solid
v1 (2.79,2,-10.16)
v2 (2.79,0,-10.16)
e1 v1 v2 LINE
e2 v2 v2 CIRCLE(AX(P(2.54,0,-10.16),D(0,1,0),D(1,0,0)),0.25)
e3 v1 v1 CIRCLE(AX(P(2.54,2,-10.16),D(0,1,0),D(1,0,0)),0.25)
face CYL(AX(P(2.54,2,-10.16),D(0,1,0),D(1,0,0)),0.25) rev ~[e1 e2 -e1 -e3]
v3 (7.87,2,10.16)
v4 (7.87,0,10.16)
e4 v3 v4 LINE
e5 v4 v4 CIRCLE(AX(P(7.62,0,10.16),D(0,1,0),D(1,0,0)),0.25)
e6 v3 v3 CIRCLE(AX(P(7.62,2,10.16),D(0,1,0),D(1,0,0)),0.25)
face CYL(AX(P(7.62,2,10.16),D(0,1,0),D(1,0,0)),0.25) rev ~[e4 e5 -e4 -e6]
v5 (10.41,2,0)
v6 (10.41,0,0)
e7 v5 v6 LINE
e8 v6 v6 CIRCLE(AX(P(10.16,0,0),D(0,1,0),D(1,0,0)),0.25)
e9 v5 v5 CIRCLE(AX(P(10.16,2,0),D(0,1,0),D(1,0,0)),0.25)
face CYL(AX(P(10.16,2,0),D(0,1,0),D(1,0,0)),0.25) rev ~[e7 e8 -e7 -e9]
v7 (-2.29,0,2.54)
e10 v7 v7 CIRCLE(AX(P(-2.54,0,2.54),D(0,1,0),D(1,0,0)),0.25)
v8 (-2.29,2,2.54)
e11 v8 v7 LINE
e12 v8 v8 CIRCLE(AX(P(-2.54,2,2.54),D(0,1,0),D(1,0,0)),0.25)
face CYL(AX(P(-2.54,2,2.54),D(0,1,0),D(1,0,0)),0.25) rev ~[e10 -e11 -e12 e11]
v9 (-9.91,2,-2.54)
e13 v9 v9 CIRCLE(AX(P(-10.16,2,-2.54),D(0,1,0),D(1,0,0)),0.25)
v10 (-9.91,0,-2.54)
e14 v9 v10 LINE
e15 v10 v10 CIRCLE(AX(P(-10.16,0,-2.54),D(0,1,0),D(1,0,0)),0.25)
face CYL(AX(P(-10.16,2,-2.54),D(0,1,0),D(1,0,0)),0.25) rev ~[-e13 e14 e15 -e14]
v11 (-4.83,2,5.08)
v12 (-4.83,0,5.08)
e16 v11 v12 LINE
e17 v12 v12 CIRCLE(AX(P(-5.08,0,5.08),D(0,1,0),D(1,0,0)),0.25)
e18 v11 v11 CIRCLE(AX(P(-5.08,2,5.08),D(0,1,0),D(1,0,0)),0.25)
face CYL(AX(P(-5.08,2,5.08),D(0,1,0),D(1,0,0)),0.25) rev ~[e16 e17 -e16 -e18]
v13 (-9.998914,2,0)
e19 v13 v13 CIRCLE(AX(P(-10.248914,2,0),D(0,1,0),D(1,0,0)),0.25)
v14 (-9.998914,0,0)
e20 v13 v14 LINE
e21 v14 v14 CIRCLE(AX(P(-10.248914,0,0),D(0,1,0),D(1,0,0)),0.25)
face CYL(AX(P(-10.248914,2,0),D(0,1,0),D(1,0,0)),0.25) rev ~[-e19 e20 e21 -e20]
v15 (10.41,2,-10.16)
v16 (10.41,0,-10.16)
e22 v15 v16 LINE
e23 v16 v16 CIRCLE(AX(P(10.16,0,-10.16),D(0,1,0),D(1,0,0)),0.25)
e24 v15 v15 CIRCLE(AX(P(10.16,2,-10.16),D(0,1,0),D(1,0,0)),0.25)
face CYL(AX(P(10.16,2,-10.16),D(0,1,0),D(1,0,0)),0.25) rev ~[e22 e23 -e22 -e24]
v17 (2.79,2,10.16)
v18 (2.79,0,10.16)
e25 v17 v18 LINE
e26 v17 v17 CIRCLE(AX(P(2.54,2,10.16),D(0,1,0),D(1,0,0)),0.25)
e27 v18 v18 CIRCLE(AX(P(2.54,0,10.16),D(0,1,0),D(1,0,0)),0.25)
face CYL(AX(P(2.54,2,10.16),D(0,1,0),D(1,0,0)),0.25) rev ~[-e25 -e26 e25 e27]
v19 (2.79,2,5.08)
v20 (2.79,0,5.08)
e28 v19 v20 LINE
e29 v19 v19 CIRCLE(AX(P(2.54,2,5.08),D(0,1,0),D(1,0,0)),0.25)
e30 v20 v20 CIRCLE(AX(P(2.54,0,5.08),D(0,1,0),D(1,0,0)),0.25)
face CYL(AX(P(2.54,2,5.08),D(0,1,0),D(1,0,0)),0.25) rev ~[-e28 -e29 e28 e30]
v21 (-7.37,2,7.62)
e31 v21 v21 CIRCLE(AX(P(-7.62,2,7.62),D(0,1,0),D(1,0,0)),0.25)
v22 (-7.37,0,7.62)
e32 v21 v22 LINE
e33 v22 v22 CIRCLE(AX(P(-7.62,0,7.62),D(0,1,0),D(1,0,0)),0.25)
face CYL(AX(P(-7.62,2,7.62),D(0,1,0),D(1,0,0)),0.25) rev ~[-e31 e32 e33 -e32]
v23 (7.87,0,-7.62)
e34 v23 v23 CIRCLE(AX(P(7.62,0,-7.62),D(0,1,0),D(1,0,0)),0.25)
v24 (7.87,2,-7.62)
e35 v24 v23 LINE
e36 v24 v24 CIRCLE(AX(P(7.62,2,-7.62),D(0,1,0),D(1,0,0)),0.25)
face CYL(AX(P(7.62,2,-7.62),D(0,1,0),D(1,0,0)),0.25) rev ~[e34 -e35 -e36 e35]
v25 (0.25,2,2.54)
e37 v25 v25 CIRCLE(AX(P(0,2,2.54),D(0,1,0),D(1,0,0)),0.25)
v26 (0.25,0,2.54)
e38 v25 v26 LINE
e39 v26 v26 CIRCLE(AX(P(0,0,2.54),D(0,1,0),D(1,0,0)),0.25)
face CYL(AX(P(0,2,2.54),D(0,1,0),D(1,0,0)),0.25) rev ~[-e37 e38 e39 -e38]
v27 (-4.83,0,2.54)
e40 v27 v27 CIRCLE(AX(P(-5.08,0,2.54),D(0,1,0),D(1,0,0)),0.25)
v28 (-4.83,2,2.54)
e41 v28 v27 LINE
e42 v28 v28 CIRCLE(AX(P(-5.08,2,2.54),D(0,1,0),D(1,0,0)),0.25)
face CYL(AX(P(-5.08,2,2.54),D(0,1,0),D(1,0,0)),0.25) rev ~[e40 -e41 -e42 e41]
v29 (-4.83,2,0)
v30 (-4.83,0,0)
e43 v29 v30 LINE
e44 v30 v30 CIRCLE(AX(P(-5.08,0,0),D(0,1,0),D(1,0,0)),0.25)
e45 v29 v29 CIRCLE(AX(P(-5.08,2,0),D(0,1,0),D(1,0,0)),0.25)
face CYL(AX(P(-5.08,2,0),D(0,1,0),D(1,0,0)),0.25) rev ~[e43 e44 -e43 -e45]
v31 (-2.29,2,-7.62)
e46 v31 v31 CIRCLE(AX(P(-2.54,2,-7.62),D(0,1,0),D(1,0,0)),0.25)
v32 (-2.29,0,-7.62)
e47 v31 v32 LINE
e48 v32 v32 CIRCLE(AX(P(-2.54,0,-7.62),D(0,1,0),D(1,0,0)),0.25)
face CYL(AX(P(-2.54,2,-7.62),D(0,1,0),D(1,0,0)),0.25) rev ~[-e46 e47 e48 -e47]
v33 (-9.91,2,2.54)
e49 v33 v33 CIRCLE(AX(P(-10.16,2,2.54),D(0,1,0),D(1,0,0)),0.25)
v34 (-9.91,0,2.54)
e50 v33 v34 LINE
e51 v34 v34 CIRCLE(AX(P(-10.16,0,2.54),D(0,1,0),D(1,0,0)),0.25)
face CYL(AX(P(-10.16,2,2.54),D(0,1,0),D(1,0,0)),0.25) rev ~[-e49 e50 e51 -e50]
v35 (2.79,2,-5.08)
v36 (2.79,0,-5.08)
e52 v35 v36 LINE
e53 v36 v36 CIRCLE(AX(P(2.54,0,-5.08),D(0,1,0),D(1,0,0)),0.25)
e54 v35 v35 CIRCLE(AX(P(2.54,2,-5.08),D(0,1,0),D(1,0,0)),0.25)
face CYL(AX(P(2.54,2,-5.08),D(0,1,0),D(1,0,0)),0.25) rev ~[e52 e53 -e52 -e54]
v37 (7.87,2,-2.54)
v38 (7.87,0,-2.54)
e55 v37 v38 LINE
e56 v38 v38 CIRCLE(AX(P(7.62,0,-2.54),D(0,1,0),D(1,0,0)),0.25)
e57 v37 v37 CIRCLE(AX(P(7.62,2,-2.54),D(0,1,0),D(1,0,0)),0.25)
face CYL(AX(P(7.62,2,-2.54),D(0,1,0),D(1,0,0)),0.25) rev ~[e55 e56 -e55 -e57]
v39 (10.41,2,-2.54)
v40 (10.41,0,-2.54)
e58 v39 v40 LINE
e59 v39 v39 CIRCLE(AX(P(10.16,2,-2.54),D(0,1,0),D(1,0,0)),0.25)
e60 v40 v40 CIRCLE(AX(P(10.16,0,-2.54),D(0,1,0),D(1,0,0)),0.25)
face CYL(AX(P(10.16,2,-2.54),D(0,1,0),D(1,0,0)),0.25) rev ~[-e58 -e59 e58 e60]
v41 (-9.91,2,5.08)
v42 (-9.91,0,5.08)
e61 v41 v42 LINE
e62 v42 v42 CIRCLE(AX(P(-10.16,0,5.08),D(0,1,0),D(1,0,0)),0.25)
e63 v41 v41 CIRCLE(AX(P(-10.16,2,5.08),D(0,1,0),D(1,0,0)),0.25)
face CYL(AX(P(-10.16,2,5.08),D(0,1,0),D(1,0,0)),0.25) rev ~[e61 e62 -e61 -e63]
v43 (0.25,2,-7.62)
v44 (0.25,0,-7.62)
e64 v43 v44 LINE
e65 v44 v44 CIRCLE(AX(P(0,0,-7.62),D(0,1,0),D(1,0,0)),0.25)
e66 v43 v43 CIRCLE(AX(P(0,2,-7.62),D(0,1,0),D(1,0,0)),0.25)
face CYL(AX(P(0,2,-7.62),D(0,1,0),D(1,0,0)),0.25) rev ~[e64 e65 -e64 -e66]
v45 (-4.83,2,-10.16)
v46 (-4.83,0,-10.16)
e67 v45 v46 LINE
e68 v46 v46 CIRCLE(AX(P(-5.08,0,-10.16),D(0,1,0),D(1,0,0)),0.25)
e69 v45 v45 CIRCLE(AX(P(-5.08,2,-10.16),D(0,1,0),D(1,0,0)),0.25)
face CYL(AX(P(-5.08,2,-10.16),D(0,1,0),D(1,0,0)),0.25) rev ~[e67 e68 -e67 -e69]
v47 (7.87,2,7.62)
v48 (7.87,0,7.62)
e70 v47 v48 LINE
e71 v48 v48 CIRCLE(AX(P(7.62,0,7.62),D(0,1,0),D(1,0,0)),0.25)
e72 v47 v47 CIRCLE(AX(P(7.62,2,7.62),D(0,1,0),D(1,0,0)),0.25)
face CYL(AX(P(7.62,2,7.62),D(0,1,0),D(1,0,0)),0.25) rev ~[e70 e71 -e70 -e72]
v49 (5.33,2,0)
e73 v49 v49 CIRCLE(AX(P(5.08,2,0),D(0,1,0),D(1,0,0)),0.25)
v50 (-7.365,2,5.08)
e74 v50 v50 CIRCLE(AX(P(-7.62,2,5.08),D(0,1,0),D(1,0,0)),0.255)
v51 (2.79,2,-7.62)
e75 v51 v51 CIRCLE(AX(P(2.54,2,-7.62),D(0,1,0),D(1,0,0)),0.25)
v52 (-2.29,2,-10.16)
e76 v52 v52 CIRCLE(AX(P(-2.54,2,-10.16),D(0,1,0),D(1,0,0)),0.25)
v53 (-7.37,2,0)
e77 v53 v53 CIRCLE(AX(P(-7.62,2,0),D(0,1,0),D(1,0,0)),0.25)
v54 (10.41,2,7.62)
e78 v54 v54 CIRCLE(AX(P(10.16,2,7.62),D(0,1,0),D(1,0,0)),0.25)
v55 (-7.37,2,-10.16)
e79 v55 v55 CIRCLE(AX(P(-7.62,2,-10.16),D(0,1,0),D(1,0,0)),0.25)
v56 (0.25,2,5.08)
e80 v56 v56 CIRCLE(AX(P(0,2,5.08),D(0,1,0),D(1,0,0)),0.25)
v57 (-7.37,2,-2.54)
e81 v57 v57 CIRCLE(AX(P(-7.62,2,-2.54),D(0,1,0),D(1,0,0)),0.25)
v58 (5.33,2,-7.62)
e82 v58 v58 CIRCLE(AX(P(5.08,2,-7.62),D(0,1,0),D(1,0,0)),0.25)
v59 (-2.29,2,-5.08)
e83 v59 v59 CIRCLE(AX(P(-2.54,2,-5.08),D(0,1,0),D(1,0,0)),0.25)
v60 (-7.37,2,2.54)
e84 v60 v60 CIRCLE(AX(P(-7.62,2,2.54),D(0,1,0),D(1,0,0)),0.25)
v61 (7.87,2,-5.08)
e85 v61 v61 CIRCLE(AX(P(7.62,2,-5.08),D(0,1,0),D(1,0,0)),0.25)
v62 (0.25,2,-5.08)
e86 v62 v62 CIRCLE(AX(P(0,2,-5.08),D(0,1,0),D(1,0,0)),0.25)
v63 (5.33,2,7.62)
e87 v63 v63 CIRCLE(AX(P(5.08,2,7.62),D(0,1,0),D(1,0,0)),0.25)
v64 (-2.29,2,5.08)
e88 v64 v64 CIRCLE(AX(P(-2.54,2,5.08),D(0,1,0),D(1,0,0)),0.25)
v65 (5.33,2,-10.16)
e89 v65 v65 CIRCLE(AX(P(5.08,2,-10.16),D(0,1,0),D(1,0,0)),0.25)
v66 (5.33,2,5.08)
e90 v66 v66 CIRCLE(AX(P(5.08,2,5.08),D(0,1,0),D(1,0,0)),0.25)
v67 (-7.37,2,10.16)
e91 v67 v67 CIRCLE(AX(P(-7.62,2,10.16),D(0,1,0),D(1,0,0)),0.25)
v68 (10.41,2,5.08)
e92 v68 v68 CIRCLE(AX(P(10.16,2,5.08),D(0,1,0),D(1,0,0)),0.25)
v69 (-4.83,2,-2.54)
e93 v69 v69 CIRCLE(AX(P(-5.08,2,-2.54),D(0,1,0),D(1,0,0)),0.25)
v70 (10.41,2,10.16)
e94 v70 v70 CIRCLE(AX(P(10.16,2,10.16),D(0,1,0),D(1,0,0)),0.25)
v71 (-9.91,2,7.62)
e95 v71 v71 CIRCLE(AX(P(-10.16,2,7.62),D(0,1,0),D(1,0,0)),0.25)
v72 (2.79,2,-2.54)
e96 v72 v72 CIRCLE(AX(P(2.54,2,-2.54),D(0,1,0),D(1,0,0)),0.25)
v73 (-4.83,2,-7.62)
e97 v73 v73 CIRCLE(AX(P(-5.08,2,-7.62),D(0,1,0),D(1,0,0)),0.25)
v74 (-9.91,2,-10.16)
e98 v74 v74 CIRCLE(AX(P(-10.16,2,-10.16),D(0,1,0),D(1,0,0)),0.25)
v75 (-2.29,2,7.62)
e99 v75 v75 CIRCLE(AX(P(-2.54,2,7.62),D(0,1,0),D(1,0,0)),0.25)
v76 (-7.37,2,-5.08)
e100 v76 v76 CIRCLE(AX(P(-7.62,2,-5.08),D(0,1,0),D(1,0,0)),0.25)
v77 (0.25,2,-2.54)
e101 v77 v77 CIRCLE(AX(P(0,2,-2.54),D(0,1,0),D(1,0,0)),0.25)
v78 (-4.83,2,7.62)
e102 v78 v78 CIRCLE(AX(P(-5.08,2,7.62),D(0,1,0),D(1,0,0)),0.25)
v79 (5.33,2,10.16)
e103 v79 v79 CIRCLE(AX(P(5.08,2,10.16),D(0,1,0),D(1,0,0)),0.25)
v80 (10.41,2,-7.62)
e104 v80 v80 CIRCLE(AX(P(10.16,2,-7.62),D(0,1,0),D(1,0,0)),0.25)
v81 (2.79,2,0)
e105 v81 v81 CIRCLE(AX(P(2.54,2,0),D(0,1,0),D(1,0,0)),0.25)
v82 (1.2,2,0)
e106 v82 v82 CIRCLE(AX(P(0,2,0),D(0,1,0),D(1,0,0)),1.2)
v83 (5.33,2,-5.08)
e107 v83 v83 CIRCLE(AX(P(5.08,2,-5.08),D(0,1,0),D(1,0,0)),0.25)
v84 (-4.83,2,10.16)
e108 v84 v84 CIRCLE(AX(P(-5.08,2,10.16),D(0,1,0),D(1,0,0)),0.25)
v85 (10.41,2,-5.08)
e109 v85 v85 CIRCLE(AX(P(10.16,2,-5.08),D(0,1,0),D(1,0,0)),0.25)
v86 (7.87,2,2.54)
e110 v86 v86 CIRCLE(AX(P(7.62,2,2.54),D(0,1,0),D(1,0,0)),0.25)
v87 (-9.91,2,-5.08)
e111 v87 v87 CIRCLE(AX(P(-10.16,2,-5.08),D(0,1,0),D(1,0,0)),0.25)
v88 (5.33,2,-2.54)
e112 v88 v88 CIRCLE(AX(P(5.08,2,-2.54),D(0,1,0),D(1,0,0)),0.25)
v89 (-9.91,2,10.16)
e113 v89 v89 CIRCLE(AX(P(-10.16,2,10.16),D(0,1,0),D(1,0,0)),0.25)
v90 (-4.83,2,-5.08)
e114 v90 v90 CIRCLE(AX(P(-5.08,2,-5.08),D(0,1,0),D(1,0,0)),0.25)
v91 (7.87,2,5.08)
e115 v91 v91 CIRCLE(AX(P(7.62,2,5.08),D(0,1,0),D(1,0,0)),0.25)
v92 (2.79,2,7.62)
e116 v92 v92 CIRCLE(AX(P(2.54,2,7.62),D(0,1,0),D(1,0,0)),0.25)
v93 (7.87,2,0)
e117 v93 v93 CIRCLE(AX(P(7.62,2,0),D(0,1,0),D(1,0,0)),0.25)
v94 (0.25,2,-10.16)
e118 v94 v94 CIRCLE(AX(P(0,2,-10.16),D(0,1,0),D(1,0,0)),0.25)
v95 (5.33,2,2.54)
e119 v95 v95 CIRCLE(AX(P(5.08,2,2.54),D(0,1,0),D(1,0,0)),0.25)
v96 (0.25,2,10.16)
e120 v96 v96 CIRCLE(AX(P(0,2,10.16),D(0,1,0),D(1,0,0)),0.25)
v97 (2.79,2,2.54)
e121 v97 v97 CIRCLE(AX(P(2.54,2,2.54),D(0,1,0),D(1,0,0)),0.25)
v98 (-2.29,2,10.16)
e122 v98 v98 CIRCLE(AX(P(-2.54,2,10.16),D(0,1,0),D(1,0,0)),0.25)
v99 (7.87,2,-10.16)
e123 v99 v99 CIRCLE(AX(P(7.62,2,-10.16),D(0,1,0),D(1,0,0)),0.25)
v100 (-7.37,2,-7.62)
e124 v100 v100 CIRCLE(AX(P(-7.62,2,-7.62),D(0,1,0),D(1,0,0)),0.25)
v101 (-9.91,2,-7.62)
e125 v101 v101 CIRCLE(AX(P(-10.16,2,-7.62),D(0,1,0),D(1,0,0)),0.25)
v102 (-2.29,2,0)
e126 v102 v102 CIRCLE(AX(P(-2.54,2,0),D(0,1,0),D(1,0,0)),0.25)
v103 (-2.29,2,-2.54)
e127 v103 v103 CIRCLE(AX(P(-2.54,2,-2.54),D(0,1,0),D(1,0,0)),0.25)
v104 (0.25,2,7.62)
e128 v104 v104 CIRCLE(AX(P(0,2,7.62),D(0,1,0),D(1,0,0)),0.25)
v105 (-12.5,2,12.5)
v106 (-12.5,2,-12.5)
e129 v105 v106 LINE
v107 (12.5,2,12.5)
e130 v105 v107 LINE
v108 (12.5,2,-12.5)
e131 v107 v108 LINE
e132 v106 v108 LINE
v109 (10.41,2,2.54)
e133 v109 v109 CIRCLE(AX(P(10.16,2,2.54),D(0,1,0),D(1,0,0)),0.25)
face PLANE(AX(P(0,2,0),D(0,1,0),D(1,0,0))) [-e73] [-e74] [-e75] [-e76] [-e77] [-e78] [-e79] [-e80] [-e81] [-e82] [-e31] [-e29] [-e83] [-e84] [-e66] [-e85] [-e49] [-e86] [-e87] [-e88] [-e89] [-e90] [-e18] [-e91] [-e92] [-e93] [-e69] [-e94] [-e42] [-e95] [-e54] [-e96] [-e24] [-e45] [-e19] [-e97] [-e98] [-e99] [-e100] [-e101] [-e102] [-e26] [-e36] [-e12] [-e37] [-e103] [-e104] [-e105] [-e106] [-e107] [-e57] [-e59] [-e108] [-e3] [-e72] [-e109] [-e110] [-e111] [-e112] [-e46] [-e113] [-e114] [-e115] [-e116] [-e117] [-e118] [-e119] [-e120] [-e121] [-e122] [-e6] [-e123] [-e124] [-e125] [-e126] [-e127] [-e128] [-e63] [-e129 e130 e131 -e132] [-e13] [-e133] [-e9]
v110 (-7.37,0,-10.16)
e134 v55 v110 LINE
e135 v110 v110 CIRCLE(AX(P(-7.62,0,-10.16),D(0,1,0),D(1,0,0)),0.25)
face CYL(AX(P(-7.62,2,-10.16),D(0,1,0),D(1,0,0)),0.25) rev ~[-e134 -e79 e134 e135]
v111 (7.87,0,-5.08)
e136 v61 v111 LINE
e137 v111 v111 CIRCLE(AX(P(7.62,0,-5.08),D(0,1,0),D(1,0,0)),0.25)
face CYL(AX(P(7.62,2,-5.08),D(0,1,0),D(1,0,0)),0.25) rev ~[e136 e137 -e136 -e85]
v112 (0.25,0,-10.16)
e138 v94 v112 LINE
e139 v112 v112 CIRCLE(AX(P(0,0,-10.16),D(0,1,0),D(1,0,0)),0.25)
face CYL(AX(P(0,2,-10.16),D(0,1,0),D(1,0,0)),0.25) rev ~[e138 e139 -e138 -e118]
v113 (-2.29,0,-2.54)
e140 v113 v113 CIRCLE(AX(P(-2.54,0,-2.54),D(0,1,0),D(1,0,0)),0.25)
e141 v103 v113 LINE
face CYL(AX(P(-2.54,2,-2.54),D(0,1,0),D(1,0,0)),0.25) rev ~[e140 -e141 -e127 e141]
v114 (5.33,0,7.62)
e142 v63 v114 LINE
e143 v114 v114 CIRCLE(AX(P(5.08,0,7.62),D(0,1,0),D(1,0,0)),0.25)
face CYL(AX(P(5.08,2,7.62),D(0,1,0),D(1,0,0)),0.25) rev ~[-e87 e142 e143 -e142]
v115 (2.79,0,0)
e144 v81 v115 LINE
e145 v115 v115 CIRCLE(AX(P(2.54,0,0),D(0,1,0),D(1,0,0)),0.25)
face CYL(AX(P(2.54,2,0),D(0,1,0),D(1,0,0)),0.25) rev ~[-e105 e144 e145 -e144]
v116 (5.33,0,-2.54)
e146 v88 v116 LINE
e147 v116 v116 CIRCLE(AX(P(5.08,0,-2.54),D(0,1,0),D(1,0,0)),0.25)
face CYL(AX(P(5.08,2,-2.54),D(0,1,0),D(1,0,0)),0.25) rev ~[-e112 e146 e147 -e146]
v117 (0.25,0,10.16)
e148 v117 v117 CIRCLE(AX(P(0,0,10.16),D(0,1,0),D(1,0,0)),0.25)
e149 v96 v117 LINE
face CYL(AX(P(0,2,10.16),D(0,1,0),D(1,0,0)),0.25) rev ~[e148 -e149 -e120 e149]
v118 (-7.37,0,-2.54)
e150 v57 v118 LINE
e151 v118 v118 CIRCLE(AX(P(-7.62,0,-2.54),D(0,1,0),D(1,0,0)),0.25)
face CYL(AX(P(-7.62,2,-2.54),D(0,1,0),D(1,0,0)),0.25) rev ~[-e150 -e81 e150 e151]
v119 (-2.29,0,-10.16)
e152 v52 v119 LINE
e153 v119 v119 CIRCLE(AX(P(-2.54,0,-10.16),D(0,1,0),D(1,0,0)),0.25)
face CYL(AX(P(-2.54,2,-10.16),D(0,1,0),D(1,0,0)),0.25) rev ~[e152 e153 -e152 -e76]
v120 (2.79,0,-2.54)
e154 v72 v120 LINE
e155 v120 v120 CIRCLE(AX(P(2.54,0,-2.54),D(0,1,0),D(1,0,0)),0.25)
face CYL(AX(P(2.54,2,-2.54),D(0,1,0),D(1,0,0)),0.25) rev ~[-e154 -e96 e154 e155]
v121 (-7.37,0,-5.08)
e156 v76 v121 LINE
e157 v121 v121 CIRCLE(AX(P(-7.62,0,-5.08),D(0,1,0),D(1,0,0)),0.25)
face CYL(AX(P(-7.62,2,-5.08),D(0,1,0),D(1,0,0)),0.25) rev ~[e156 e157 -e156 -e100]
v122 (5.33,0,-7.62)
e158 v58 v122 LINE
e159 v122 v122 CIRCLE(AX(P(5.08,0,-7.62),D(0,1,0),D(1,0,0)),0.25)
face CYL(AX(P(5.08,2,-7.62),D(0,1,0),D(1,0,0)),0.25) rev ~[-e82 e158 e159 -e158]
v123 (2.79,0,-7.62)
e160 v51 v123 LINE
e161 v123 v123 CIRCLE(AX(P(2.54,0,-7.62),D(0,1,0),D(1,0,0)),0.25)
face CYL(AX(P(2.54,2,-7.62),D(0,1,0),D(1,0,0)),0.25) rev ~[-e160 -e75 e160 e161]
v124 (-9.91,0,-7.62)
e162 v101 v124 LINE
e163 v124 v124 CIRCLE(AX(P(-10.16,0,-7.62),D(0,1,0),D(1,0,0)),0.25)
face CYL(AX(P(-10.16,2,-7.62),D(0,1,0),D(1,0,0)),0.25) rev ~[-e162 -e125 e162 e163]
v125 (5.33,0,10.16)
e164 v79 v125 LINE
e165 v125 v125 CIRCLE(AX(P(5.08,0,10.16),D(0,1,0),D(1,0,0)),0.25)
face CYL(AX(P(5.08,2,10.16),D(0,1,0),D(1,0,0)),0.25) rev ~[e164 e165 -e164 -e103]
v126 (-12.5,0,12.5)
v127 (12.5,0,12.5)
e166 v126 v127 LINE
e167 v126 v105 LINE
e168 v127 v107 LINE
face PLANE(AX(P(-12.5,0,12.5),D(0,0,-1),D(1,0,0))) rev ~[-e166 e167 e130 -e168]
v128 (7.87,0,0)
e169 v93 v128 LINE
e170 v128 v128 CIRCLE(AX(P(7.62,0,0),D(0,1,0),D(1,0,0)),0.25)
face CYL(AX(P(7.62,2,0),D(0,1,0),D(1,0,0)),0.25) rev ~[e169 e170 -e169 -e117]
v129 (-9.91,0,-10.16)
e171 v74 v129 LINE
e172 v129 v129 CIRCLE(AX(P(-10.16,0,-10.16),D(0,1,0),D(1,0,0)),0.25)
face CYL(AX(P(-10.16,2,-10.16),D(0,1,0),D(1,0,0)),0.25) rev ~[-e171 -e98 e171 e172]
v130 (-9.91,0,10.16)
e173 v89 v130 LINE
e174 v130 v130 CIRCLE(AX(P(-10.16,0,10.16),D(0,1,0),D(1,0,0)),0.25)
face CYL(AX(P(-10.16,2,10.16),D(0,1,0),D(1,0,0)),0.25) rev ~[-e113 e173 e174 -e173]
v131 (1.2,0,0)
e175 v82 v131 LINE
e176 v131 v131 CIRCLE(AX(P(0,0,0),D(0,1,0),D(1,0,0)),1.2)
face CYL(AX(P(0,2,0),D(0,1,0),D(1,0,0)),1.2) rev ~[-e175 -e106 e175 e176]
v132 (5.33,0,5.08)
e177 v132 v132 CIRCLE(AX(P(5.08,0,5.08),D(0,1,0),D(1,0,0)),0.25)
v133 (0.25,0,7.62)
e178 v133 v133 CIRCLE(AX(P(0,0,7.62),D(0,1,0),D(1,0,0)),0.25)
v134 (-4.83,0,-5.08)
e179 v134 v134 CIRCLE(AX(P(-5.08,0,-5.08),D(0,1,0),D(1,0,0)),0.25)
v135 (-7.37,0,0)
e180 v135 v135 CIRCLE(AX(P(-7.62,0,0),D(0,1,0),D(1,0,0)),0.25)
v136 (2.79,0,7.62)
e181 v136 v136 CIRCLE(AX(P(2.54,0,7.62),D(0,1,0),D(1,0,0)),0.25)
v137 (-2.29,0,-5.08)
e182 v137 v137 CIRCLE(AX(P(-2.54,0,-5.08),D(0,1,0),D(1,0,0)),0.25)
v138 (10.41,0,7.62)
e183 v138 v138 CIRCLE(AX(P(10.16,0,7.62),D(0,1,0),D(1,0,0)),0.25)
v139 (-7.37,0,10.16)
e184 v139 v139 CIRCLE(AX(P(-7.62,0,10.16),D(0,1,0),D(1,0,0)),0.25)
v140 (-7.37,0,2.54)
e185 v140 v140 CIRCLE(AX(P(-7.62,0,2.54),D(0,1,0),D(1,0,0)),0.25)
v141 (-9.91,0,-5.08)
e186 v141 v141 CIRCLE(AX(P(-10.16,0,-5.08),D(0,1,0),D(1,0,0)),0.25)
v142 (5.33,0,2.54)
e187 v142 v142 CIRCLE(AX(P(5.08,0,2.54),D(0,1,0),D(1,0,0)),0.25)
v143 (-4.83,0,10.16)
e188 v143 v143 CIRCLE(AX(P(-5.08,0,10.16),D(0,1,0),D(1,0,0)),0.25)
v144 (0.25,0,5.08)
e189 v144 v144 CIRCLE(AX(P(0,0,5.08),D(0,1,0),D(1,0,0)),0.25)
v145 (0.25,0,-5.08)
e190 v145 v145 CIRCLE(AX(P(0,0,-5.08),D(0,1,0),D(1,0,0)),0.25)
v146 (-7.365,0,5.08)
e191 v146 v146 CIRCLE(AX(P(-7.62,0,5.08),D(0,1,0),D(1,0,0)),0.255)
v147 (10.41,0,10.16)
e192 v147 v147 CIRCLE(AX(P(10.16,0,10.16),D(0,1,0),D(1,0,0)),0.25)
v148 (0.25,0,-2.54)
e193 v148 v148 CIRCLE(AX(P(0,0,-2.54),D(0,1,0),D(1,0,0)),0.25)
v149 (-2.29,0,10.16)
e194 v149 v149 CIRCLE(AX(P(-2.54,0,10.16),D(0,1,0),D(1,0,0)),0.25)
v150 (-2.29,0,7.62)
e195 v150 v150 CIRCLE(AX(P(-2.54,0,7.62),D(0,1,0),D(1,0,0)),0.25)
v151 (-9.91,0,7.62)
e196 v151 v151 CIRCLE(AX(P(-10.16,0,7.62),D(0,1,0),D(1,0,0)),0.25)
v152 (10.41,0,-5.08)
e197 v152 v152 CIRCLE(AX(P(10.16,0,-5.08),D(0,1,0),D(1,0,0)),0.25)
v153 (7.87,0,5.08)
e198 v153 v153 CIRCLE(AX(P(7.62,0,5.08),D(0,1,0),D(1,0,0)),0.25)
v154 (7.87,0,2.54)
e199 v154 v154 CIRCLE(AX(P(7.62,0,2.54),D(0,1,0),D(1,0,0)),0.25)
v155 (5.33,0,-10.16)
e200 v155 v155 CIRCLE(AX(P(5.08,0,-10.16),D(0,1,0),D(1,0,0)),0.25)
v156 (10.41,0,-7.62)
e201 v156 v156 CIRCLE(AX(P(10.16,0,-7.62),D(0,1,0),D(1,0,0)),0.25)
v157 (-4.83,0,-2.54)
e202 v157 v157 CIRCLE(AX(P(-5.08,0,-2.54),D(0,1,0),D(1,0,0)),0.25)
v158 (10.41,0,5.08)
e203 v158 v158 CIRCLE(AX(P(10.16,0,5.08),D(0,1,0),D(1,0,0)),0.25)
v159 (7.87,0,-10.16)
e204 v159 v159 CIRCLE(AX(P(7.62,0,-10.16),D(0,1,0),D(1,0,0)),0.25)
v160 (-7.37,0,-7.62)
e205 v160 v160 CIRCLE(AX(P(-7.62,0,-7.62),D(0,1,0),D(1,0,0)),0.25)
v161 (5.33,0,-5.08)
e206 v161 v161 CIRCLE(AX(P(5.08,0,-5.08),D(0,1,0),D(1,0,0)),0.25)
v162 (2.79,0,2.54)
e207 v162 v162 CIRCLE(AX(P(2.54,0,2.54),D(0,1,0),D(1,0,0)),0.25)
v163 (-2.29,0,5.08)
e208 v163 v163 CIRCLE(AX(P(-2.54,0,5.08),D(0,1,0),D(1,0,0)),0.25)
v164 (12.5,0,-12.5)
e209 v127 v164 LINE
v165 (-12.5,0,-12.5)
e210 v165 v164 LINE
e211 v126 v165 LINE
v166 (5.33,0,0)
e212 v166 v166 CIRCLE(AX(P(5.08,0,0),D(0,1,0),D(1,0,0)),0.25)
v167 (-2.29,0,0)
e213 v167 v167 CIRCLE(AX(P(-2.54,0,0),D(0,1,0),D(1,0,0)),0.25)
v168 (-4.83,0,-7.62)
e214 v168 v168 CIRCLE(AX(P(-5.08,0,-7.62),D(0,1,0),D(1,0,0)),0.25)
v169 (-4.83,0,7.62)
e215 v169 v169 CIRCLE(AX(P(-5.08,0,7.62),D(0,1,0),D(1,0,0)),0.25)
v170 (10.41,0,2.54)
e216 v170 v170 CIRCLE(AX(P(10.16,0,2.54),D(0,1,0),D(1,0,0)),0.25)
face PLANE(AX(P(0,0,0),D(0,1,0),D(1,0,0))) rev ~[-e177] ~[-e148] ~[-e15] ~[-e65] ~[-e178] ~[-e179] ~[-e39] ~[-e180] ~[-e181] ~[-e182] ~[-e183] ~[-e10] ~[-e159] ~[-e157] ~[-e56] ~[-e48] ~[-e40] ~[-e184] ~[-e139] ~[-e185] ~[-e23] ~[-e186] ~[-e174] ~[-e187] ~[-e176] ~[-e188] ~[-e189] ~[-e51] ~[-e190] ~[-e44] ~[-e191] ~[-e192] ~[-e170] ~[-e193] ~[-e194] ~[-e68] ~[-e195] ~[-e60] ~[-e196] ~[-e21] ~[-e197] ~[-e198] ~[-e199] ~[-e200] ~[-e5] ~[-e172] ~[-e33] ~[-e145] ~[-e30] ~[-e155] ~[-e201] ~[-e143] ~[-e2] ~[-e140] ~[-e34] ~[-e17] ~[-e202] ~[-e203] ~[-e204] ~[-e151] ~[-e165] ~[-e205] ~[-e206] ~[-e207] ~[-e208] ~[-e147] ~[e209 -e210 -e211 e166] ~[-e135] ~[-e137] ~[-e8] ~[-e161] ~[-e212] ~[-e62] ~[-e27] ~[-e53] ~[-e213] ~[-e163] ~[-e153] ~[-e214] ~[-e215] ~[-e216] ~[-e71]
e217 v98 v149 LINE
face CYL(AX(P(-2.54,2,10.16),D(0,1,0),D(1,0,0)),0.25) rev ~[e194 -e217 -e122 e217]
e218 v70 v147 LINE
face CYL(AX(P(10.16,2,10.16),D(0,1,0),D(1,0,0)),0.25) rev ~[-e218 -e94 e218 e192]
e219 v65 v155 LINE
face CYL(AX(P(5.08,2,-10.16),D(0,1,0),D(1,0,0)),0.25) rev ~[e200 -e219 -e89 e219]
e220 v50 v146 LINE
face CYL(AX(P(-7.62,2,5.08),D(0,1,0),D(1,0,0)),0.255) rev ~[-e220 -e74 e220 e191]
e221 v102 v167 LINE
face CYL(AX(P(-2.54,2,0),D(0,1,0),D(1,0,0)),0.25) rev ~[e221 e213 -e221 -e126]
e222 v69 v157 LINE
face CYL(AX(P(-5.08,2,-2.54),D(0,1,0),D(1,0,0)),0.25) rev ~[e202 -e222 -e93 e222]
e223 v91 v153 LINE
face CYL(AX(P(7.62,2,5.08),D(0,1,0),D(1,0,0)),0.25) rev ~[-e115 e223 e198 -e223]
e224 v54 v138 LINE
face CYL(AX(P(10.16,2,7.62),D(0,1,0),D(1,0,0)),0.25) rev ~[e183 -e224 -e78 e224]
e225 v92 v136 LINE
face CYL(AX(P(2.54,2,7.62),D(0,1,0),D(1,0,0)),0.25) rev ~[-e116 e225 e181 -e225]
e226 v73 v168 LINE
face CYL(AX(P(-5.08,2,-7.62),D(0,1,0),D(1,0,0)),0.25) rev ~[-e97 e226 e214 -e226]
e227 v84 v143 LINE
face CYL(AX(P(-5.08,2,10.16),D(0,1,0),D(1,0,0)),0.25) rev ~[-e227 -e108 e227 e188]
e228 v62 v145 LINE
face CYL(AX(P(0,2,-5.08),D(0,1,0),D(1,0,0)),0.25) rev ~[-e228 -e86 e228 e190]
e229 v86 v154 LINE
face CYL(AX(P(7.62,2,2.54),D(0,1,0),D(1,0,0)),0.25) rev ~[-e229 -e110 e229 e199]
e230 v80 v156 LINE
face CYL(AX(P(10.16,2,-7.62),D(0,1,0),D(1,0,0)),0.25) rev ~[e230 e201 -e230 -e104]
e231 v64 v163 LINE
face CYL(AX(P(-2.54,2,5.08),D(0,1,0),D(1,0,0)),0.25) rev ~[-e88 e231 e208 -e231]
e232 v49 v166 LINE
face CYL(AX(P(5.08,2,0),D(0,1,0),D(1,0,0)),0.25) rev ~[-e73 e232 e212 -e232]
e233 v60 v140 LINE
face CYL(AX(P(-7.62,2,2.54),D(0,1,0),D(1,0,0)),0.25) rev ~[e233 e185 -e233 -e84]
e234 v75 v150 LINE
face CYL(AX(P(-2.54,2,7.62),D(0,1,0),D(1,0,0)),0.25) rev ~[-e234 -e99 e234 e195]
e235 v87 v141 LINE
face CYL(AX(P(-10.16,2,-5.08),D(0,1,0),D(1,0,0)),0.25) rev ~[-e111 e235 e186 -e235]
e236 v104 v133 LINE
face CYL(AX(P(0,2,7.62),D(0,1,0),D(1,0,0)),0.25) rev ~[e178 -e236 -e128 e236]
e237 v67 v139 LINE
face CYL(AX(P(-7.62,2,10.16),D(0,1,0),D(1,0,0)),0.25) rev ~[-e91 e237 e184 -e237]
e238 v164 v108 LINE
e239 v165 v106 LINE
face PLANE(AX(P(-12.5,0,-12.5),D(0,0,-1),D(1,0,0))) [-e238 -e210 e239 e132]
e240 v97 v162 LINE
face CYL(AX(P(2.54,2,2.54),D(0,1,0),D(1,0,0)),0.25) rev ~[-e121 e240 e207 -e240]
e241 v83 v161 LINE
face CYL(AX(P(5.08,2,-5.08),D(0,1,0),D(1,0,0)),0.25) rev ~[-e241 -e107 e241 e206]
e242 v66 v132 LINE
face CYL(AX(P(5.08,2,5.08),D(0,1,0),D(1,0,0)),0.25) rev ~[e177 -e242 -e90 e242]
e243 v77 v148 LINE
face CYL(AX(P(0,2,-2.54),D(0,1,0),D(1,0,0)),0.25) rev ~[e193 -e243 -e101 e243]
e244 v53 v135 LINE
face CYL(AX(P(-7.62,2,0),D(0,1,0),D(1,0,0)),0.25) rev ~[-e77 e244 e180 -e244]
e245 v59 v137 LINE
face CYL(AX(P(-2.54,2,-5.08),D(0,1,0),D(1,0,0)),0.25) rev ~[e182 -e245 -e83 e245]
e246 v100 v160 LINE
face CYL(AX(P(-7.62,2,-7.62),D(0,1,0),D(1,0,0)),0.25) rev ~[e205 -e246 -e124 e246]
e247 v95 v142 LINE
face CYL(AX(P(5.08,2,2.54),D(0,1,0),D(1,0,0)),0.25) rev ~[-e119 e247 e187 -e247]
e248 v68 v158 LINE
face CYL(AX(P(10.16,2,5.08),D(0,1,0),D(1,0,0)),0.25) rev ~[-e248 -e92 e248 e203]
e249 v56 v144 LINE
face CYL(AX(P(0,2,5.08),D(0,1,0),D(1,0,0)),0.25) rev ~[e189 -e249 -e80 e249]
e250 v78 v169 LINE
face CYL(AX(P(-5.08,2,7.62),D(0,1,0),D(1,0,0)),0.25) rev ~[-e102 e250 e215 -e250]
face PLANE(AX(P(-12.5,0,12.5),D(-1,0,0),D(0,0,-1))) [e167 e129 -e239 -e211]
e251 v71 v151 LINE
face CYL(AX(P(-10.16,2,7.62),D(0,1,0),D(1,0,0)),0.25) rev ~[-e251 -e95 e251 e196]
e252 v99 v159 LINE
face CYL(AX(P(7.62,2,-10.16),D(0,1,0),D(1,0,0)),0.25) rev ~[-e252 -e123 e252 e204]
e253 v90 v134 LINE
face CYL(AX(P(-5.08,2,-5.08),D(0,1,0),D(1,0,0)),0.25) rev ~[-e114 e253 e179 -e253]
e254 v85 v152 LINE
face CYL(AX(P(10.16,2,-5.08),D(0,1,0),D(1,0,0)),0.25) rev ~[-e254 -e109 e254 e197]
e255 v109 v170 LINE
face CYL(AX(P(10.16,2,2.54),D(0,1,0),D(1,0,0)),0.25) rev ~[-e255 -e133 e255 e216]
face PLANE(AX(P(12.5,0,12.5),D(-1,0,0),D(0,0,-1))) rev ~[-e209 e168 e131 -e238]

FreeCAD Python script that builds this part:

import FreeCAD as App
import Part
import Sketcher
from FreeCAD import Vector
Q = App.Units.Quantity


def add_polygon(sketch, points):
    """Adds a closed chain of lines whose ends are joined by coincident constraints."""
    first, n = sketch.GeometryCount, len(points)
    for a, b in zip(points, points[1:] + points[:1]):
        sketch.addGeometry(Part.LineSegment(App.Vector(*a, 0), App.Vector(*b, 0)), False)
    for i in range(n):
        sketch.addConstraint(Sketcher.Constraint("Coincident", first + i, 2, first + (i + 1) % n, 1))

doc = App.newDocument("Part")
body = doc.addObject("PartDesign::Body", "Body")

sketch1 = body.newObject("Sketcher::SketchObject", "Sketch")
sketch1.AttachmentSupport = (doc.getObject("XZ_Plane"), [""])
sketch1.MapMode = "FlatFace"
add_polygon(sketch1, [(-12, -12), (-12, 12), (12, 12), (12, -12)])
sketch1.addConstraint(Sketcher.Constraint("Vertical", 0))
sketch1.addConstraint(Sketcher.Constraint("Horizontal", 1))
sketch1.addConstraint(Sketcher.Constraint("Vertical", 2))
sketch1.addConstraint(Sketcher.Constraint("Horizontal", 3))
sketch1.addConstraint(Sketcher.Constraint("Symmetric", 0, 2, 2, 2, -1, 1))
sketch1.addConstraint(Sketcher.Constraint("Equal", 3, 0))
sketch1.addConstraint(Sketcher.Constraint("DistanceX", 1, 1, 1, 2, Q("25 mm")))
pad1 = body.newObject("PartDesign::Pad", "Pad")
pad1.Profile = sketch1
pad1.Length = 2
pad1.Reversed = True

sketch2 = body.newObject("Sketcher::SketchObject", "Sketch001")
sketch2.AttachmentSupport = (doc.getObject("XZ_Plane"), [""])
sketch2.MapMode = "FlatFace"
sketch2.AttachmentOffset = App.Placement(Vector(0, 0, -2), App.Rotation())
sketch2.addGeometry(Part.Circle(Vector(0, 0, 0), Vector(0, 0, 1), 1.2), False)
sketch2.addConstraint(Sketcher.Constraint("Coincident", 0, 3, -1, 1))
sketch2.addConstraint(Sketcher.Constraint("Diameter", 0, Q("2.4 mm")))
pocket1 = body.newObject("PartDesign::Pocket", "Pocket")
pocket1.Profile = sketch2
pocket1.Length = 2
pocket1.Reversed = True

sketch3 = body.newObject("Sketcher::SketchObject", "Sketch002")
sketch3.AttachmentSupport = (doc.getObject("XZ_Plane"), [""])
sketch3.MapMode = "FlatFace"
sketch3.AttachmentOffset = App.Placement(Vector(0, 0, -2), App.Rotation())
sketch3.addGeometry(Part.Circle(Vector(0, 0, 0), Vector(0, 0, 1), 0.25), False)
sketch3.addGeometry(Part.Circle(Vector(-2.54, 0, 0), Vector(0, 0, 1), 0.25), False)
sketch3.addGeometry(Part.Circle(Vector(-5.08, 0, 0), Vector(0, 0, 1), 0.25), False)
sketch3.addGeometry(Part.Circle(Vector(-7.62, 0, 0), Vector(0, 0, 1), 0.25), False)
sketch3.addGeometry(Part.Circle(Vector(-10.25, 0, 0), Vector(0, 0, 1), 0.25), False)
sketch3.addGeometry(Part.Circle(Vector(2.54, 0, 0), Vector(0, 0, 1), 0.25), False)
sketch3.addGeometry(Part.Circle(Vector(5.08, 0, 0), Vector(0, 0, 1), 0.25), False)
sketch3.addGeometry(Part.Circle(Vector(7.62, 0, 0), Vector(0, 0, 1), 0.25), False)
sketch3.addGeometry(Part.Circle(Vector(10.16, 0, 0), Vector(0, 0, 1), 0.25), False)
sketch3.addGeometry(Part.Circle(Vector(-10.16, -2.54, 0), Vector(0, 0, 1), 0.25), False)
sketch3.addGeometry(Part.Circle(Vector(-7.62, -2.54, 0), Vector(0, 0, 1), 0.25), False)
sketch3.addGeometry(Part.Circle(Vector(-5.08, -2.54, 0), Vector(0, 0, 1), 0.25), False)
sketch3.addGeometry(Part.Circle(Vector(-2.54, -2.54, 0), Vector(0, 0, 1), 0.25), False)
sketch3.addGeometry(Part.Circle(Vector(0, -2.54, 0), Vector(0, 0, 1), 0.25), False)
sketch3.addGeometry(Part.Circle(Vector(2.54, -2.54, 0), Vector(0, 0, 1), 0.25), False)
sketch3.addGeometry(Part.Circle(Vector(5.08, -2.54, 0), Vector(0, 0, 1), 0.25), False)
sketch3.addGeometry(Part.Circle(Vector(7.62, -2.54, 0), Vector(0, 0, 1), 0.25), False)
sketch3.addGeometry(Part.Circle(Vector(10.16, -2.54, 0), Vector(0, 0, 1), 0.25), False)
sketch3.addGeometry(Part.Circle(Vector(-10.16, -5.08, 0), Vector(0, 0, 1), 0.25), False)
sketch3.addGeometry(Part.Circle(Vector(-7.62, -5.08, 0), Vector(0, 0, 1), 0.25), False)
sketch3.addGeometry(Part.Circle(Vector(-5.08, -5.08, 0), Vector(0, 0, 1), 0.25), False)
sketch3.addGeometry(Part.Circle(Vector(-2.54, -5.08, 0), Vector(0, 0, 1), 0.25), False)
sketch3.addGeometry(Part.Circle(Vector(0, -5.08, 0), Vector(0, 0, 1), 0.25), False)
sketch3.addGeometry(Part.Circle(Vector(2.54, -5.08, 0), Vector(0, 0, 1), 0.25), False)
sketch3.addGeometry(Part.Circle(Vector(5.08, -5.08, 0), Vector(0, 0, 1), 0.25), False)
sketch3.addGeometry(Part.Circle(Vector(7.62, -5.08, 0), Vector(0, 0, 1), 0.25), False)
sketch3.addGeometry(Part.Circle(Vector(10.16, -5.08, 0), Vector(0, 0, 1), 0.25), False)
sketch3.addGeometry(Part.Circle(Vector(10.16, -7.62, 0), Vector(0, 0, 1), 0.25), False)
sketch3.addGeometry(Part.Circle(Vector(7.62, -7.62, 0), Vector(0, 0, 1), 0.25), False)
sketch3.addGeometry(Part.Circle(Vector(5.08, -7.62, 0), Vector(0, 0, 1), 0.25), False)
sketch3.addGeometry(Part.Circle(Vector(2.54, -7.62, 0), Vector(0, 0, 1), 0.25), False)
sketch3.addGeometry(Part.Circle(Vector(0, -7.62, 0), Vector(0, 0, 1), 0.25), False)
sketch3.addGeometry(Part.Circle(Vector(-2.54, -7.62, 0), Vector(0, 0, 1), 0.25), False)
sketch3.addGeometry(Part.Circle(Vector(-5.08, -7.62, 0), Vector(0, 0, 1), 0.25), False)
sketch3.addGeometry(Part.Circle(Vector(-7.62, -7.62, 0), Vector(0, 0, 1), 0.25), False)
sketch3.addGeometry(Part.Circle(Vector(-10.16, -7.62, 0), Vector(0, 0, 1), 0.25), False)
sketch3.addGeometry(Part.Circle(Vector(10.16, -10.16, 0), Vector(0, 0, 1), 0.25), False)
sketch3.addGeometry(Part.Circle(Vector(7.62, -10.16, 0), Vector(0, 0, 1), 0.25), False)
sketch3.addGeometry(Part.Circle(Vector(5.08, -10.16, 0), Vector(0, 0, 1), 0.25), False)
sketch3.addGeometry(Part.Circle(Vector(2.54, -10.16, 0), Vector(0, 0, 1), 0.25), False)
sketch3.addGeometry(Part.Circle(Vector(0, -10.16, 0), Vector(0, 0, 1), 0.25), False)
sketch3.addGeometry(Part.Circle(Vector(-2.54, -10.16, 0), Vector(0, 0, 1), 0.25), False)
sketch3.addGeometry(Part.Circle(Vector(-5.08, -10.16, 0), Vector(0, 0, 1), 0.25), False)
sketch3.addGeometry(Part.Circle(Vector(-7.62, -10.16, 0), Vector(0, 0, 1), 0.25), False)
sketch3.addGeometry(Part.Circle(Vector(-10.16, -10.16, 0), Vector(0, 0, 1), 0.25), False)
sketch3.addGeometry(Part.Circle(Vector(10.16, 2.54, 0), Vector(0, 0, 1), 0.25), False)
sketch3.addGeometry(Part.Circle(Vector(7.62, 2.54, 0), Vector(0, 0, 1), 0.25), False)
sketch3.addGeometry(Part.Circle(Vector(5.08, 2.54, 0), Vector(0, 0, 1), 0.25), False)
sketch3.addGeometry(Part.Circle(Vector(2.54, 2.54, 0), Vector(0, 0, 1), 0.25), False)
sketch3.addGeometry(Part.Circle(Vector(0, 2.54, 0), Vector(0, 0, 1), 0.25), False)
sketch3.addGeometry(Part.Circle(Vector(-2.54, 2.54, 0), Vector(0, 0, 1), 0.25), False)
sketch3.addGeometry(Part.Circle(Vector(-5.08, 2.54, 0), Vector(0, 0, 1), 0.25), False)
sketch3.addGeometry(Part.Circle(Vector(-7.62, 2.54, 0), Vector(0, 0, 1), 0.25), False)
sketch3.addGeometry(Part.Circle(Vector(-10.16, 2.54, 0), Vector(0, 0, 1), 0.25), False)
sketch3.addGeometry(Part.Circle(Vector(10.16, 5.08, 0), Vector(0, 0, 1), 0.25), False)
sketch3.addGeometry(Part.Circle(Vector(7.62, 5.08, 0), Vector(0, 0, 1), 0.25), False)
sketch3.addGeometry(Part.Circle(Vector(5.08, 5.08, 0), Vector(0, 0, 1), 0.25), False)
sketch3.addGeometry(Part.Circle(Vector(2.54, 5.08, 0), Vector(0, 0, 1), 0.25), False)
sketch3.addGeometry(Part.Circle(Vector(0, 5.08, 0), Vector(0, 0, 1), 0.25), False)
sketch3.addGeometry(Part.Circle(Vector(-2.54, 5.08, 0), Vector(0, 0, 1), 0.25), False)
sketch3.addGeometry(Part.Circle(Vector(-5.08, 5.08, 0), Vector(0, 0, 1), 0.25), False)
sketch3.addGeometry(Part.Circle(Vector(-7.62, 5.08, 0), Vector(0, 0, 1), 0.26), False)
sketch3.addGeometry(Part.Circle(Vector(-10.16, 5.08, 0), Vector(0, 0, 1), 0.25), False)
sketch3.addGeometry(Part.Circle(Vector(-10.16, 7.62, 0), Vector(0, 0, 1), 0.25), False)
sketch3.addGeometry(Part.Circle(Vector(-7.62, 7.62, 0), Vector(0, 0, 1), 0.25), False)
sketch3.addGeometry(Part.Circle(Vector(-5.08, 7.62, 0), Vector(0, 0, 1), 0.25), False)
sketch3.addGeometry(Part.Circle(Vector(-2.54, 7.62, 0), Vector(0, 0, 1), 0.25), False)
sketch3.addGeometry(Part.Circle(Vector(0, 7.62, 0), Vector(0, 0, 1), 0.25), False)
sketch3.addGeometry(Part.Circle(Vector(2.54, 7.62, 0), Vector(0, 0, 1), 0.25), False)
sketch3.addGeometry(Part.Circle(Vector(5.08, 7.62, 0), Vector(0, 0, 1), 0.25), False)
sketch3.addGeometry(Part.Circle(Vector(7.62, 7.62, 0), Vector(0, 0, 1), 0.25), False)
sketch3.addGeometry(Part.Circle(Vector(10.16, 7.62, 0), Vector(0, 0, 1), 0.25), False)
sketch3.addGeometry(Part.Circle(Vector(-10.16, 10.16, 0), Vector(0, 0, 1), 0.25), False)
sketch3.addGeometry(Part.Circle(Vector(-7.62, 10.16, 0), Vector(0, 0, 1), 0.25), False)
sketch3.addGeometry(Part.Circle(Vector(-5.08, 10.16, 0), Vector(0, 0, 1), 0.25), False)
sketch3.addGeometry(Part.Circle(Vector(-2.54, 10.16, 0), Vector(0, 0, 1), 0.25), False)
sketch3.addGeometry(Part.Circle(Vector(0, 10.16, 0), Vector(0, 0, 1), 0.25), False)
sketch3.addGeometry(Part.Circle(Vector(2.54, 10.16, 0), Vector(0, 0, 1), 0.25), False)
sketch3.addGeometry(Part.Circle(Vector(5.08, 10.16, 0), Vector(0, 0, 1), 0.25), False)
sketch3.addGeometry(Part.Circle(Vector(7.62, 10.16, 0), Vector(0, 0, 1), 0.25), False)
sketch3.addGeometry(Part.Circle(Vector(10.16, 10.16, 0), Vector(0, 0, 1), 0.25), False)
sketch3.addConstraint(Sketcher.Constraint("Coincident", 0, 3, -1, 1))
sketch3.addConstraint(Sketcher.Constraint("Equal", 0, 1))
sketch3.addConstraint(Sketcher.Constraint("Equal", 1, 2))
sketch3.addConstraint(Sketcher.Constraint("Equal", 2, 3))
sketch3.addConstraint(Sketcher.Constraint("Equal", 3, 4))
sketch3.addConstraint(Sketcher.Constraint("Equal", 4, 5))
sketch3.addConstraint(Sketcher.Constraint("Equal", 5, 6))
sketch3.addConstraint(Sketcher.Constraint("Equal", 6, 7))
sketch3.addConstraint(Sketcher.Constraint("Equal", 7, 8))
sketch3.addConstraint(Sketcher.Constraint("Equal", 8, 9))
sketch3.addConstraint(Sketcher.Constraint("Equal", 9, 10))
sketch3.addConstraint(Sketcher.Constraint("Equal", 10, 11))
sketch3.addConstraint(Sketcher.Constraint("Equal", 11, 12))
sketch3.addConstraint(Sketcher.Constraint("Equal", 12, 13))
sketch3.addConstraint(Sketcher.Constraint("Equal", 13, 14))
sketch3.addConstraint(Sketcher.Constraint("Equal", 14, 15))
sketch3.addConstraint(Sketcher.Constraint("Equal", 15, 16))
sketch3.addConstraint(Sketcher.Constraint("Equal", 16, 17))
sketch3.addConstraint(Sketcher.Constraint("Equal", 17, 18))
sketch3.addConstraint(Sketcher.Constraint("Equal", 18, 19))
sketch3.addConstraint(Sketcher.Constraint("Equal", 19, 20))
sketch3.addConstraint(Sketcher.Constraint("Equal", 20, 21))
sketch3.addConstraint(Sketcher.Constraint("Equal", 21, 22))
sketch3.addConstraint(Sketcher.Constraint("Equal", 22, 23))
sketch3.addConstraint(Sketcher.Constraint("Equal", 23, 24))
sketch3.addConstraint(Sketcher.Constraint("Equal", 24, 25))
sketch3.addConstraint(Sketcher.Constraint("Equal", 25, 26))
sketch3.addConstraint(Sketcher.Constraint("Equal", 26, 27))
sketch3.addConstraint(Sketcher.Constraint("Equal", 27, 28))
sketch3.addConstraint(Sketcher.Constraint("Equal", 28, 29))
sketch3.addConstraint(Sketcher.Constraint("Equal", 29, 30))
sketch3.addConstraint(Sketcher.Constraint("Equal", 30, 31))
sketch3.addConstraint(Sketcher.Constraint("Equal", 31, 32))
sketch3.addConstraint(Sketcher.Constraint("Equal", 32, 33))
sketch3.addConstraint(Sketcher.Constraint("Equal", 33, 34))
sketch3.addConstraint(Sketcher.Constraint("Equal", 34, 35))
sketch3.addConstraint(Sketcher.Constraint("Equal", 35, 36))
sketch3.addConstraint(Sketcher.Constraint("Equal", 36, 37))
sketch3.addConstraint(Sketcher.Constraint("Equal", 37, 38))
sketch3.addConstraint(Sketcher.Constraint("Equal", 38, 39))
sketch3.addConstraint(Sketcher.Constraint("Equal", 39, 40))
sketch3.addConstraint(Sketcher.Constraint("Equal", 40, 41))
sketch3.addConstraint(Sketcher.Constraint("Equal", 41, 42))
sketch3.addConstraint(Sketcher.Constraint("Equal", 42, 43))
sketch3.addConstraint(Sketcher.Constraint("Equal", 43, 44))
sketch3.addConstraint(Sketcher.Constraint("Equal", 44, 45))
sketch3.addConstraint(Sketcher.Constraint("Equal", 45, 46))
sketch3.addConstraint(Sketcher.Constraint("Equal", 46, 47))
sketch3.addConstraint(Sketcher.Constraint("Equal", 47, 48))
sketch3.addConstraint(Sketcher.Constraint("Equal", 48, 49))
sketch3.addConstraint(Sketcher.Constraint("Equal", 49, 50))
sketch3.addConstraint(Sketcher.Constraint("Equal", 50, 51))
sketch3.addConstraint(Sketcher.Constraint("Equal", 51, 52))
sketch3.addConstraint(Sketcher.Constraint("Equal", 52, 53))
sketch3.addConstraint(Sketcher.Constraint("Equal", 53, 54))
sketch3.addConstraint(Sketcher.Constraint("Equal", 54, 55))
sketch3.addConstraint(Sketcher.Constraint("Equal", 55, 56))
sketch3.addConstraint(Sketcher.Constraint("Equal", 56, 57))
sketch3.addConstraint(Sketcher.Constraint("Equal", 57, 58))
sketch3.addConstraint(Sketcher.Constraint("Equal", 58, 59))
sketch3.addConstraint(Sketcher.Constraint("Equal", 59, 60))
sketch3.addConstraint(Sketcher.Constraint("Equal", 60, 62))
sketch3.addConstraint(Sketcher.Constraint("Equal", 62, 63))
sketch3.addConstraint(Sketcher.Constraint("Equal", 63, 64))
sketch3.addConstraint(Sketcher.Constraint("Equal", 64, 65))
sketch3.addConstraint(Sketcher.Constraint("Equal", 65, 66))
sketch3.addConstraint(Sketcher.Constraint("Equal", 66, 67))
sketch3.addConstraint(Sketcher.Constraint("Equal", 67, 68))
sketch3.addConstraint(Sketcher.Constraint("Equal", 68, 69))
sketch3.addConstraint(Sketcher.Constraint("Equal", 69, 70))
sketch3.addConstraint(Sketcher.Constraint("Equal", 70, 71))
sketch3.addConstraint(Sketcher.Constraint("Equal", 71, 72))
sketch3.addConstraint(Sketcher.Constraint("Equal", 72, 73))
sketch3.addConstraint(Sketcher.Constraint("Equal", 73, 74))
sketch3.addConstraint(Sketcher.Constraint("Equal", 74, 75))
sketch3.addConstraint(Sketcher.Constraint("Equal", 75, 76))
sketch3.addConstraint(Sketcher.Constraint("Equal", 76, 77))
sketch3.addConstraint(Sketcher.Constraint("Equal", 77, 78))
sketch3.addConstraint(Sketcher.Constraint("Equal", 78, 79))
sketch3.addConstraint(Sketcher.Constraint("Equal", 79, 80))
sketch3.addConstraint(Sketcher.Constraint("Symmetric", 1, 3, 5, 3, -1, 1))
sketch3.addConstraint(Sketcher.Constraint("Symmetric", 2, 3, 6, 3, -1, 1))
sketch3.addConstraint(Sketcher.Constraint("Symmetric", 3, 3, 7, 3, -1, 1))
sketch3.addConstraint(Sketcher.Constraint("Symmetric", 9, 3, 45, 3, -1, 1))
sketch3.addConstraint(Sketcher.Constraint("Symmetric", 10, 3, 46, 3, -1, 1))
sketch3.addConstraint(Sketcher.Constraint("Symmetric", 11, 3, 47, 3, -1, 1))
sketch3.addConstraint(Sketcher.Constraint("Symmetric", 12, 3, 48, 3, -1, 1))
sketch3.addConstraint(Sketcher.Constraint("Symmetric", 13, 3, 49, 3, -1, 1))
sketch3.addConstraint(Sketcher.Constraint("Symmetric", 14, 3, 50, 3, -1, 1))
sketch3.addConstraint(Sketcher.Constraint("Symmetric", 15, 3, 51, 3, -1, 1))
sketch3.addConstraint(Sketcher.Constraint("Symmetric", 16, 3, 52, 3, -1, 1))
sketch3.addConstraint(Sketcher.Constraint("Symmetric", 17, 3, 53, 3, -1, 1))
sketch3.addConstraint(Sketcher.Constraint("Symmetric", 18, 3, 54, 3, -1, 1))
sketch3.addConstraint(Sketcher.Constraint("Symmetric", 19, 3, 55, 3, -1, 1))
sketch3.addConstraint(Sketcher.Constraint("Symmetric", 20, 3, 56, 3, -1, 1))
sketch3.addConstraint(Sketcher.Constraint("Symmetric", 21, 3, 57, 3, -1, 1))
sketch3.addConstraint(Sketcher.Constraint("Symmetric", 22, 3, 58, 3, -1, 1))
sketch3.addConstraint(Sketcher.Constraint("Symmetric", 23, 3, 59, 3, -1, 1))
sketch3.addConstraint(Sketcher.Constraint("Symmetric", 24, 3, 60, 3, -1, 1))
sketch3.addConstraint(Sketcher.Constraint("Symmetric", 25, 3, 61, 3, -1, 1))
sketch3.addConstraint(Sketcher.Constraint("Symmetric", 26, 3, 62, 3, -1, 1))
sketch3.addConstraint(Sketcher.Constraint("Symmetric", 27, 3, 63, 3, -1, 1))
sketch3.addConstraint(Sketcher.Constraint("Symmetric", 28, 3, 64, 3, -1, 1))
sketch3.addConstraint(Sketcher.Constraint("Symmetric", 29, 3, 65, 3, -1, 1))
sketch3.addConstraint(Sketcher.Constraint("Symmetric", 30, 3, 66, 3, -1, 1))
sketch3.addConstraint(Sketcher.Constraint("Symmetric", 31, 3, 67, 3, -1, 1))
sketch3.addConstraint(Sketcher.Constraint("Symmetric", 32, 3, 68, 3, -1, 1))
sketch3.addConstraint(Sketcher.Constraint("Symmetric", 33, 3, 69, 3, -1, 1))
sketch3.addConstraint(Sketcher.Constraint("Symmetric", 34, 3, 70, 3, -1, 1))
sketch3.addConstraint(Sketcher.Constraint("Symmetric", 35, 3, 71, 3, -1, 1))
sketch3.addConstraint(Sketcher.Constraint("Symmetric", 36, 3, 72, 3, -1, 1))
sketch3.addConstraint(Sketcher.Constraint("Symmetric", 37, 3, 73, 3, -1, 1))
sketch3.addConstraint(Sketcher.Constraint("Symmetric", 38, 3, 74, 3, -1, 1))
sketch3.addConstraint(Sketcher.Constraint("Symmetric", 39, 3, 75, 3, -1, 1))
sketch3.addConstraint(Sketcher.Constraint("Symmetric", 40, 3, 76, 3, -1, 1))
sketch3.addConstraint(Sketcher.Constraint("Symmetric", 41, 3, 77, 3, -1, 1))
sketch3.addConstraint(Sketcher.Constraint("Symmetric", 42, 3, 78, 3, -1, 1))
sketch3.addConstraint(Sketcher.Constraint("Symmetric", 43, 3, 79, 3, -1, 1))
sketch3.addConstraint(Sketcher.Constraint("Symmetric", 44, 3, 80, 3, -1, 1))
sketch3.addConstraint(Sketcher.Constraint("Symmetric", 12, 3, 14, 3, -2))
sketch3.addConstraint(Sketcher.Constraint("Symmetric", 11, 3, 15, 3, -2))
sketch3.addConstraint(Sketcher.Constraint("Symmetric", 10, 3, 16, 3, -2))
sketch3.addConstraint(Sketcher.Constraint("Symmetric", 9, 3, 17, 3, -2))
sketch3.addConstraint(Sketcher.Constraint("Symmetric", 21, 3, 23, 3, -2))
sketch3.addConstraint(Sketcher.Constraint("Symmetric", 20, 3, 24, 3, -2))
sketch3.addConstraint(Sketcher.Constraint("Symmetric", 19, 3, 25, 3, -2))
sketch3.addConstraint(Sketcher.Constraint("Symmetric", 18, 3, 26, 3, -2))
sketch3.addConstraint(Sketcher.Constraint("Symmetric", 30, 3, 32, 3, -2))
sketch3.addConstraint(Sketcher.Constraint("Symmetric", 29, 3, 33, 3, -2))
sketch3.addConstraint(Sketcher.Constraint("Symmetric", 28, 3, 34, 3, -2))
sketch3.addConstraint(Sketcher.Constraint("Symmetric", 27, 3, 35, 3, -2))
sketch3.addConstraint(Sketcher.Constraint("Symmetric", 39, 3, 41, 3, -2))
sketch3.addConstraint(Sketcher.Constraint("Symmetric", 38, 3, 42, 3, -2))
sketch3.addConstraint(Sketcher.Constraint("Symmetric", 37, 3, 43, 3, -2))
sketch3.addConstraint(Sketcher.Constraint("Symmetric", 36, 3, 44, 3, -2))
sketch3.addConstraint(Sketcher.Constraint("PointOnObject", 1, 3, -1))
sketch3.addConstraint(Sketcher.Constraint("PointOnObject", 2, 3, -1))
sketch3.addConstraint(Sketcher.Constraint("PointOnObject", 3, 3, -1))
sketch3.addConstraint(Sketcher.Constraint("PointOnObject", 4, 3, -1))
sketch3.addConstraint(Sketcher.Constraint("PointOnObject", 8, 3, -1))
sketch3.addConstraint(Sketcher.Constraint("PointOnObject", 13, 3, -2))
sketch3.addConstraint(Sketcher.Constraint("PointOnObject", 22, 3, -2))
sketch3.addConstraint(Sketcher.Constraint("PointOnObject", 31, 3, -2))
sketch3.addConstraint(Sketcher.Constraint("PointOnObject", 40, 3, -2))
sketch3.addConstraint(Sketcher.Constraint("Horizontal", 9, 3, 10, 3))
sketch3.addConstraint(Sketcher.Constraint("Horizontal", 10, 3, 11, 3))
sketch3.addConstraint(Sketcher.Constraint("Horizontal", 11, 3, 12, 3))
sketch3.addConstraint(Sketcher.Constraint("Horizontal", 12, 3, 13, 3))
sketch3.addConstraint(Sketcher.Constraint("Horizontal", 18, 3, 19, 3))
sketch3.addConstraint(Sketcher.Constraint("Horizontal", 19, 3, 20, 3))
sketch3.addConstraint(Sketcher.Constraint("Horizontal", 20, 3, 21, 3))
sketch3.addConstraint(Sketcher.Constraint("Horizontal", 21, 3, 22, 3))
sketch3.addConstraint(Sketcher.Constraint("Horizontal", 27, 3, 28, 3))
sketch3.addConstraint(Sketcher.Constraint("Horizontal", 28, 3, 29, 3))
sketch3.addConstraint(Sketcher.Constraint("Horizontal", 29, 3, 30, 3))
sketch3.addConstraint(Sketcher.Constraint("Horizontal", 30, 3, 31, 3))
sketch3.addConstraint(Sketcher.Constraint("Horizontal", 36, 3, 37, 3))
sketch3.addConstraint(Sketcher.Constraint("Horizontal", 37, 3, 38, 3))
sketch3.addConstraint(Sketcher.Constraint("Horizontal", 38, 3, 39, 3))
sketch3.addConstraint(Sketcher.Constraint("Horizontal", 39, 3, 40, 3))
sketch3.addConstraint(Sketcher.Constraint("Vertical", 3, 3, 10, 3))
sketch3.addConstraint(Sketcher.Constraint("Vertical", 2, 3, 11, 3))
sketch3.addConstraint(Sketcher.Constraint("Vertical", 1, 3, 12, 3))
sketch3.addConstraint(Sketcher.Constraint("Vertical", 8, 3, 17, 3))
sketch3.addConstraint(Sketcher.Constraint("Vertical", 9, 3, 18, 3))
sketch3.addConstraint(Sketcher.Constraint("Vertical", 10, 3, 19, 3))
sketch3.addConstraint(Sketcher.Constraint("Vertical", 11, 3, 20, 3))
sketch3.addConstraint(Sketcher.Constraint("Vertical", 12, 3, 21, 3))
sketch3.addConstraint(Sketcher.Constraint("Vertical", 26, 3, 27, 3))
sketch3.addConstraint(Sketcher.Constraint("Vertical", 25, 3, 28, 3))
sketch3.addConstraint(Sketcher.Constraint("Vertical", 24, 3, 29, 3))
sketch3.addConstraint(Sketcher.Constraint("Vertical", 23, 3, 30, 3))
sketch3.addConstraint(Sketcher.Constraint("Vertical", 27, 3, 36, 3))
sketch3.addConstraint(Sketcher.Constraint("Vertical", 28, 3, 37, 3))
sketch3.addConstraint(Sketcher.Constraint("Vertical", 29, 3, 38, 3))
sketch3.addConstraint(Sketcher.Constraint("Vertical", 30, 3, 39, 3))
sketch3.addConstraint(Sketcher.Constraint("Diameter", 0, Q("0.5 mm")))
sketch3.addConstraint(Sketcher.Constraint("Diameter", 61, Q("0.51 mm")))
sketch3.addConstraint(Sketcher.Constraint("DistanceX", 1, 3, -1, 1, Q("2.54 mm")))
sketch3.addConstraint(Sketcher.Constraint("DistanceX", 2, 3, -1, 1, Q("5.08 mm")))
sketch3.addConstraint(Sketcher.Constraint("DistanceX", 3, 3, -1, 1, Q("7.62 mm")))
sketch3.addConstraint(Sketcher.Constraint("DistanceX", -1, 1, 8, 3, Q("10.16 mm")))
sketch3.addConstraint(Sketcher.Constraint("DistanceY", 9, 3, -1, 1, Q("2.54 mm")))
sketch3.addConstraint(Sketcher.Constraint("DistanceY", 18, 3, -1, 1, Q("5.08 mm")))
sketch3.addConstraint(Sketcher.Constraint("DistanceY", 27, 3, -1, 1, Q("7.62 mm")))
sketch3.addConstraint(Sketcher.Constraint("DistanceY", 36, 3, -1, 1, Q("10.16 mm")))
sketch3.addConstraint(Sketcher.Constraint("DistanceX", 4, 3, -1, 1, Q("10.248914 mm")))
pocket2 = body.newObject("PartDesign::Pocket", "Pocket001")
pocket2.Profile = sketch3
pocket2.Length = 2
pocket2.Reversed = True

doc.recompute()
